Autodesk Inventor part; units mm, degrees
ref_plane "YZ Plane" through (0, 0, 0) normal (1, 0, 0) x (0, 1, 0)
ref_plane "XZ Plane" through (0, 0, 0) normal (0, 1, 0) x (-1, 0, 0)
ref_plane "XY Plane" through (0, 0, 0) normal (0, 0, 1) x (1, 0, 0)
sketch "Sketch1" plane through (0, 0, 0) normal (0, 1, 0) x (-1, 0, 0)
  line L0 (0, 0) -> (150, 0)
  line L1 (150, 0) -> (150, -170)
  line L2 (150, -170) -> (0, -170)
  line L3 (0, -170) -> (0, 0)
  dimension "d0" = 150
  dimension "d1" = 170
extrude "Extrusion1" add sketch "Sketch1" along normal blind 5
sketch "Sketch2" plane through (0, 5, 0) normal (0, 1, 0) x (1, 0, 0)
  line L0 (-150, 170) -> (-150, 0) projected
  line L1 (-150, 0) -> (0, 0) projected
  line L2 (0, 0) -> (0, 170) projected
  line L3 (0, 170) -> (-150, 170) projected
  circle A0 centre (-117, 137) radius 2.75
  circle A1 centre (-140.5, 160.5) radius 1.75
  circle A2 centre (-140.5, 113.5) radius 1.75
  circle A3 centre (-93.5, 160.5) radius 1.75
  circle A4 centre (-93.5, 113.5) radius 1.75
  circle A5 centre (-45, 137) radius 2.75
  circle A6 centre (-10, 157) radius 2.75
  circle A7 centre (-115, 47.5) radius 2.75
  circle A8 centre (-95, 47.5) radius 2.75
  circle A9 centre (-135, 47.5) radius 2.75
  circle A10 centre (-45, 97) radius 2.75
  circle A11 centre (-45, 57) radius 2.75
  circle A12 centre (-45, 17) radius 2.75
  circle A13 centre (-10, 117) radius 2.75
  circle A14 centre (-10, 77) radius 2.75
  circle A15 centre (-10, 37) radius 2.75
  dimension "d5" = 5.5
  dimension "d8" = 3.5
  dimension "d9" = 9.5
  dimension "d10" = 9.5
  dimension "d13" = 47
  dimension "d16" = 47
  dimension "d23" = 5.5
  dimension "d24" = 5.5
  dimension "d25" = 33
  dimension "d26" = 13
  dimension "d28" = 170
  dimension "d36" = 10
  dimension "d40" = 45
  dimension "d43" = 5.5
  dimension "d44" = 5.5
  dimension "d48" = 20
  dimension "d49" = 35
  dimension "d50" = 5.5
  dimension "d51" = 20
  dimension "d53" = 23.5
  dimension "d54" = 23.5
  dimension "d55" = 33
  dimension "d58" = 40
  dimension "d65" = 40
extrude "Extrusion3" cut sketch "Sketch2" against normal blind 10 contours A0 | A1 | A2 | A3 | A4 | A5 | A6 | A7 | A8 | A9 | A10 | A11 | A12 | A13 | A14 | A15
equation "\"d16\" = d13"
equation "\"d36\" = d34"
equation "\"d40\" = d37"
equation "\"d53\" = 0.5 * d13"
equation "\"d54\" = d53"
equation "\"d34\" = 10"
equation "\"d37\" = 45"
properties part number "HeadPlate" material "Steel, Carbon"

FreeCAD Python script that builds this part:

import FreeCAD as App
import Part
import Sketcher
from FreeCAD import Vector


def add_polygon(sketch, points):
    """Adds a closed chain of lines whose ends are joined by coincident constraints."""
    first, n = sketch.GeometryCount, len(points)
    for a, b in zip(points, points[1:] + points[:1]):
        sketch.addGeometry(Part.LineSegment(App.Vector(*a, 0), App.Vector(*b, 0)), False)
    for i in range(n):
        sketch.addConstraint(Sketcher.Constraint("Coincident", first + i, 2, first + (i + 1) % n, 1))

doc = App.newDocument("Part")
body = doc.addObject("PartDesign::Body", "Body")

sketch1 = body.newObject("Sketcher::SketchObject", "Sketch")
sketch1.AttachmentSupport = (doc.getObject("XZ_Plane"), [""])
sketch1.MapMode = "FlatFace"
add_polygon(sketch1, [(-150, 0), (0, 0), (0, -170), (-150, -170)])
sketch1.addConstraint([
    Sketcher.Constraint("Horizontal", 0),
    Sketcher.Constraint("Vertical", 1),
    Sketcher.Constraint("Horizontal", 2),
    Sketcher.Constraint("Vertical", 3),
    Sketcher.Constraint("Coincident", 0, 2, -1, 1),
    Sketcher.Constraint("DistanceX", 0, 1, 0, 2, 150.0),
    Sketcher.Constraint("DistanceY", 1, 2, 1, 1, 170.0),
])
pad1 = body.newObject("PartDesign::Pad", "Pad")
pad1.Profile = sketch1
pad1.Length = 5
pad1.Reversed = True

sketch2 = body.newObject("Sketcher::SketchObject", "Sketch001")
sketch2.AttachmentSupport = (doc.getObject("XZ_Plane"), [""])
sketch2.MapMode = "FlatFace"
sketch2.AttachmentOffset = App.Placement(Vector(0, 0, -5), App.Rotation())
sketch2.addGeometry([
    Part.Circle(Vector(-117, -137, 0), Vector(0, 0, 1), 2.8),
    Part.Circle(Vector(-140.5, -160.5, 0), Vector(0, 0, 1), 1.8),
    Part.Circle(Vector(-140.5, -113.5, 0), Vector(0, 0, 1), 1.8),
    Part.Circle(Vector(-93.5, -160.5, 0), Vector(0, 0, 1), 1.8),
    Part.Circle(Vector(-93.5, -113.5, 0), Vector(0, 0, 1), 1.8),
    Part.Circle(Vector(-45, -137, 0), Vector(0, 0, 1), 2.8),
    Part.Circle(Vector(-10, -157, 0), Vector(0, 0, 1), 2.8),
    Part.Circle(Vector(-115, -47.5, 0), Vector(0, 0, 1), 2.8),
    Part.Circle(Vector(-95, -47.5, 0), Vector(0, 0, 1), 2.8),
    Part.Circle(Vector(-135, -47.5, 0), Vector(0, 0, 1), 2.8),
    Part.Circle(Vector(-45, -97, 0), Vector(0, 0, 1), 2.8),
    Part.Circle(Vector(-45, -57, 0), Vector(0, 0, 1), 2.8),
    Part.Circle(Vector(-45, -17, 0), Vector(0, 0, 1), 2.8),
    Part.Circle(Vector(-10, -117, 0), Vector(0, 0, 1), 2.8),
    Part.Circle(Vector(-10, -77, 0), Vector(0, 0, 1), 2.8),
    Part.Circle(Vector(-10, -37, 0), Vector(0, 0, 1), 2.8),
], False)
sketch2.addConstraint([
    Sketcher.Constraint("Equal", 1, 2),
    Sketcher.Constraint("Equal", 2, 3),
    Sketcher.Constraint("Equal", 3, 4),
    Sketcher.Constraint("Equal", 0, 5),
    Sketcher.Constraint("Equal", 5, 6),
    Sketcher.Constraint("Equal", 6, 7),
    Sketcher.Constraint("Equal", 7, 8),
    Sketcher.Constraint("Equal", 8, 9),
    Sketcher.Constraint("Equal", 9, 10),
    Sketcher.Constraint("Equal", 10, 11),
    Sketcher.Constraint("Equal", 11, 12),
    Sketcher.Constraint("Equal", 12, 13),
    Sketcher.Constraint("Equal", 13, 14),
    Sketcher.Constraint("Equal", 14, 15),
    Sketcher.Constraint("Horizontal", 1, 3, 3, 3),
    Sketcher.Constraint("Horizontal", 2, 3, 4, 3),
    Sketcher.Constraint("Horizontal", 0, 3, 5, 3),
    Sketcher.Constraint("Horizontal", 7, 3, 8, 3),
    Sketcher.Constraint("Horizontal", 8, 3, 9, 3),
    Sketcher.Constraint("Vertical", 1, 3, 2, 3),
    Sketcher.Constraint("Vertical", 3, 3, 4, 3),
    Sketcher.Constraint("Vertical", 5, 3, 10, 3),
    Sketcher.Constraint("Vertical", 10, 3, 11, 3),
    Sketcher.Constraint("Vertical", 11, 3, 12, 3),
    Sketcher.Constraint("Vertical", 6, 3, 13, 3),
    Sketcher.Constraint("Vertical", 13, 3, 14, 3),
    Sketcher.Constraint("Vertical", 14, 3, 15, 3),
    Sketcher.Constraint("Diameter", 0, 5.5),
    Sketcher.Constraint("Diameter", 1, 3.5),
    Sketcher.Constraint("DistanceX", 5, 3, -1, 1, 45.0),
    Sketcher.Constraint("DistanceX", 6, 3, -1, 1, 10.0),
    Sketcher.Constraint("DistanceY", 1, 3, 2, 3, 47.0),
    Sketcher.Constraint("DistanceX", 1, 3, 3, 3, 47.0),
    Sketcher.Constraint("DistanceY", 6, 3, 5, 3, 20.0),
    Sketcher.Constraint("DistanceX", 7, 3, 8, 3, 20.0),
    Sketcher.Constraint("DistanceX", 9, 3, 7, 3, 20.0),
    Sketcher.Constraint("DistanceY", 5, 3, 10, 3, 40.0),
    Sketcher.Constraint("DistanceY", 10, 3, 11, 3, 40.0),
    Sketcher.Constraint("DistanceY", 11, 3, 12, 3, 40.0),
    Sketcher.Constraint("DistanceY", 6, 3, 13, 3, 40.0),
    Sketcher.Constraint("DistanceY", 13, 3, 14, 3, 40.0),
    Sketcher.Constraint("DistanceY", 14, 3, 15, 3, 40.0),
    Sketcher.Constraint("DistanceX", 1, 3, 0, 3, 23.5),
    Sketcher.Constraint("DistanceY", 1, 3, 0, 3, 23.5),
    Sketcher.Constraint("DistanceX", 2, 3, 9, 3, 5.5),
    Sketcher.Constraint("DistanceY", 11, 3, 8, 3, 9.5),
    Sketcher.Constraint("DistanceX", 0, 3, -1, 1, 117.0),
    Sketcher.Constraint("DistanceY", 0, 3, -1, 1, 137.0),
])
pocket1 = body.newObject("PartDesign::Pocket", "Pocket")
pocket1.Profile = sketch2
pocket1.Length = 10
pocket1.Reversed = True

doc.recompute()
